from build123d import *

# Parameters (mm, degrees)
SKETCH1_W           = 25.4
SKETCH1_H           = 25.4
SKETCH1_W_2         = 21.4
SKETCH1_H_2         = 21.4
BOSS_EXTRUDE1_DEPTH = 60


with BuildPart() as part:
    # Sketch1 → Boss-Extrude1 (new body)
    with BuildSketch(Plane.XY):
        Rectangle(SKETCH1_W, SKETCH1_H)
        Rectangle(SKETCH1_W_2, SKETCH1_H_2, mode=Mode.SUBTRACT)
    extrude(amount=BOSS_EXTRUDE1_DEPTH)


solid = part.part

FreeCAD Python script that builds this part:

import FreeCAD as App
import Part
import Sketcher
Q = App.Units.Quantity

doc = App.newDocument("Part")
params = doc.addObject("Spreadsheet::Sheet", "Params")
for row, (alias, value) in enumerate([
    ("sketch1_width", "25.4 mm"),
    ("sketch1_width2", "21.4 mm"),
    ("pad1_length", "60 mm"),
], start=1):
    params.set(f"A{row}", alias)
    params.set(f"B{row}", "=" + value)
    params.setAlias(f"B{row}", alias)

body = doc.addObject("PartDesign::Body", "Body")

sketch1 = doc.addObject("Sketcher::SketchObject", "Sketch")
body.addObject(sketch1)
sketch1.AttachmentSupport = (doc.XY_Plane, [""])
sketch1.MapMode = "FlatFace"
sketch1.addGeometry([
    Part.LineSegment(App.Vector(-12.7, 12.7, 0), App.Vector(-12.7, -12.7, 0)),
    Part.LineSegment(App.Vector(-12.7, -12.7, 0), App.Vector(12.7, -12.7, 0)),
    Part.LineSegment(App.Vector(12.7, -12.7, 0), App.Vector(12.7, 12.7, 0)),
    Part.LineSegment(App.Vector(12.7, 12.7, 0), App.Vector(-12.7, 12.7, 0)),
    Part.LineSegment(App.Vector(10.7, -10.7, 0), App.Vector(-10.7, -10.7, 0)),
    Part.LineSegment(App.Vector(-10.7, -10.7, 0), App.Vector(-10.7, 10.7, 0)),
    Part.LineSegment(App.Vector(-10.7, 10.7, 0), App.Vector(10.7, 10.7, 0)),
    Part.LineSegment(App.Vector(10.7, 10.7, 0), App.Vector(10.7, -10.7, 0)),
], False)
sketch1.addConstraint([
    Sketcher.Constraint("Coincident", 0, 2, 1, 1),
    Sketcher.Constraint("Coincident", 1, 2, 2, 1),
    Sketcher.Constraint("Coincident", 2, 2, 3, 1),
    Sketcher.Constraint("Coincident", 3, 2, 0, 1),
    Sketcher.Constraint("Coincident", 4, 2, 5, 1),
    Sketcher.Constraint("Coincident", 5, 2, 6, 1),
    Sketcher.Constraint("Coincident", 6, 2, 7, 1),
    Sketcher.Constraint("Coincident", 7, 2, 4, 1),
    Sketcher.Constraint("Vertical", 0),
    Sketcher.Constraint("Horizontal", 1),
    Sketcher.Constraint("Vertical", 2),
    Sketcher.Constraint("Horizontal", 3),
    Sketcher.Constraint("Horizontal", 4),
    Sketcher.Constraint("Vertical", 5),
    Sketcher.Constraint("Horizontal", 6),
    Sketcher.Constraint("Vertical", 7),
    Sketcher.Constraint("Symmetric", 0, 2, 2, 2, -1, 1),
    Sketcher.Constraint("Symmetric", 4, 2, 6, 2, -1, 1),
    Sketcher.Constraint("Equal", 3, 0),
    Sketcher.Constraint("Equal", 6, 5),
    Sketcher.Constraint("DistanceX", 1, 1, 1, 2, Q("25.4 mm")),
    Sketcher.Constraint("DistanceX", 4, 2, 4, 1, Q("21.4 mm")),
])
sketch1.setExpression("Constraints[20]", "Params.sketch1_width")
sketch1.setExpression("Constraints[21]", "Params.sketch1_width2")
pad1 = doc.addObject("PartDesign::Pad", "Pad")
body.addObject(pad1)
pad1.Profile = sketch1
pad1.setExpression("Length", "Params.pad1_length")

doc.recompute()
